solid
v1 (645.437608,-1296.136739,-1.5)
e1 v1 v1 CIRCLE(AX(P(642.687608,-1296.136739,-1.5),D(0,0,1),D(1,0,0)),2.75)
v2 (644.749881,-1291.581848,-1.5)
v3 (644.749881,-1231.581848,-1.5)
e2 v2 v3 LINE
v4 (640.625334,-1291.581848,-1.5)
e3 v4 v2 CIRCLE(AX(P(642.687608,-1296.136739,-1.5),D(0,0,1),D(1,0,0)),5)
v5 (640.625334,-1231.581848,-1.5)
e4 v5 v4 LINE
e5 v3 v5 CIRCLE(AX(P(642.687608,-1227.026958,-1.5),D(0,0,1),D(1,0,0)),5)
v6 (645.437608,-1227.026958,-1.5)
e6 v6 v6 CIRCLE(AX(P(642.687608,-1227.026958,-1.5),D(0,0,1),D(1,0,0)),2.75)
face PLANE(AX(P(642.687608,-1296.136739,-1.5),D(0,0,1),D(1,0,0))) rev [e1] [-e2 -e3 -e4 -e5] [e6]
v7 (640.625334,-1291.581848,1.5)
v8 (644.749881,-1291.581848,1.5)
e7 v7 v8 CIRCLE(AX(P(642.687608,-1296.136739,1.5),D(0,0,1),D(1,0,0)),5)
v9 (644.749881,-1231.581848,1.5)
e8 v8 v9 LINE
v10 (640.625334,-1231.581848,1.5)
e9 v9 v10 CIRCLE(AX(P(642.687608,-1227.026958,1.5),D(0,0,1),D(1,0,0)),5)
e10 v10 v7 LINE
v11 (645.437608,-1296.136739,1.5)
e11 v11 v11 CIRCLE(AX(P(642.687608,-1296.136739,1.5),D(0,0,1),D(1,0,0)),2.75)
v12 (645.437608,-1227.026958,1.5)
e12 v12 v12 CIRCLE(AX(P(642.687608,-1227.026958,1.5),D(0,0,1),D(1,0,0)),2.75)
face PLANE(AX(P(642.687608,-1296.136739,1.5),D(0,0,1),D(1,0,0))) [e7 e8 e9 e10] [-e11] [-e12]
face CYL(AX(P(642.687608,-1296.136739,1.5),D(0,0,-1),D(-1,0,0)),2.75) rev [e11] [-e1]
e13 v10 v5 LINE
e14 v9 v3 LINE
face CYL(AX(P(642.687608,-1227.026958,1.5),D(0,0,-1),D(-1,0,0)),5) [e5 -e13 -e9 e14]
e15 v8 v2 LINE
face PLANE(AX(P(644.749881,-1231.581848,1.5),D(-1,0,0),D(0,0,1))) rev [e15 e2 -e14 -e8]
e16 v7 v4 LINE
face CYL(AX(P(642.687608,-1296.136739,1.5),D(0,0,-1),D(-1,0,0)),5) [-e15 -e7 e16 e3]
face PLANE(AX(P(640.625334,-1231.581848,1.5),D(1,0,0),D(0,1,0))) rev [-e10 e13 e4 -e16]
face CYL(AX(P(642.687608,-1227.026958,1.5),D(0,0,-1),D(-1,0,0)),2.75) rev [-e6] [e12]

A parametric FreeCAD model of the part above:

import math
import FreeCAD as App
import Part
import Sketcher

V = App.Vector
Q = App.Units.Quantity

doc = App.newDocument("Part")
body = doc.addObject("PartDesign::Body", "Body")

sketch1 = body.newObject("Sketcher::SketchObject", "Sketch")
sketch1.AttachmentSupport = (doc.getObject("XY_Plane"), [""])
sketch1.MapMode = "FlatFace"
sketch1.addGeometry([
    Part.LineSegment(V(644.7, -1291.6, 0), V(644.7, -1231.6, 0)),
    Part.ArcOfCircle(Part.Circle(V(642.7, -1227, 0), V(0, 0, 1), 5), math.radians(-66), math.radians(246)),
    Part.LineSegment(V(640.6, -1231.6, 0), V(640.6, -1291.6, 0)),
    Part.ArcOfCircle(Part.Circle(V(642.7, -1296.1, 0), V(0, 0, 1), 5), math.radians(114), math.radians(426)),
    Part.Circle(V(642.7, -1296.1, 0), V(0, 0, 1), 2.8),
    Part.Circle(V(642.7, -1227, 0), V(0, 0, 1), 2.8),
], False)
sketch1.addConstraint([
    Sketcher.Constraint("Coincident", 0, 2, 1, 1),
    Sketcher.Constraint("Coincident", 1, 2, 2, 1),
    Sketcher.Constraint("Coincident", 2, 2, 3, 1),
    Sketcher.Constraint("Coincident", 3, 2, 0, 1),
    Sketcher.Constraint("Vertical", 0),
    Sketcher.Constraint("Vertical", 2),
    Sketcher.Constraint("Coincident", 4, 3, 3, 3),
    Sketcher.Constraint("Coincident", 5, 3, 1, 3),
    Sketcher.Constraint("Equal", 1, 3),
    Sketcher.Constraint("Equal", 4, 5),
    Sketcher.Constraint("Horizontal", 0, 2, 1, 2),
    Sketcher.Constraint("Horizontal", 2, 2, 3, 2),
    Sketcher.Constraint("Radius", 1, Q("5 mm")),
    Sketcher.Constraint("Diameter", 4, Q("5.5 mm")),
    Sketcher.Constraint("DistanceY", 0, 1, 0, 2, Q("60 mm")),
    Sketcher.Constraint("DistanceY", 3, 3, -1, 1, Q("1296.136739 mm")),
    Sketcher.Constraint("DistanceX", -1, 1, 0, 2, Q("644.749881 mm")),
    Sketcher.Constraint("DistanceY", 0, 2, -1, 1, Q("1231.581848 mm")),
])
pad1 = body.newObject("PartDesign::Pad", "Pad")
pad1.Profile = sketch1
pad1.Length = 3
pad1.Midplane = True

doc.recompute()
